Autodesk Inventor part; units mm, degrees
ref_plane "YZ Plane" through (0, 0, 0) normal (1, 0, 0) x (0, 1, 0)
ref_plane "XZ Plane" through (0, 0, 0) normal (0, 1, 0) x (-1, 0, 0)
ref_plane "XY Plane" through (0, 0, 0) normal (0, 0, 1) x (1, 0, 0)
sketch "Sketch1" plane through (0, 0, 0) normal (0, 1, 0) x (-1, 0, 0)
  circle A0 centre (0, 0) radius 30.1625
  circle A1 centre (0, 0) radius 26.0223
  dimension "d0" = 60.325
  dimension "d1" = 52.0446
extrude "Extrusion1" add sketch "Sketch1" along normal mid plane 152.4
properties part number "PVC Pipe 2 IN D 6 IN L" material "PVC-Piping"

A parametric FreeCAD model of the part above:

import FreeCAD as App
import Part
import Sketcher
from FreeCAD import Vector
Q = App.Units.Quantity

doc = App.newDocument("Part")
body = doc.addObject("PartDesign::Body", "Body")

sketch1 = doc.addObject("Sketcher::SketchObject", "Sketch")
body.addObject(sketch1)
sketch1.AttachmentSupport = (doc.XZ_Plane, [""])
sketch1.MapMode = "FlatFace"
sketch1.addGeometry(Part.Circle(Vector(0, 0, 0), Vector(0, 0, 1), 30.1625), False)
sketch1.addGeometry(Part.Circle(Vector(0, 0, 0), Vector(0, 0, 1), 26.0223), False)
sketch1.addConstraint(Sketcher.Constraint("Coincident", 0, 3, -1, 1))
sketch1.addConstraint(Sketcher.Constraint("Coincident", 1, 3, -1, 1))
sketch1.addConstraint(Sketcher.Constraint("Diameter", 0, Q("2.375 in")))
sketch1.addConstraint(Sketcher.Constraint("Diameter", 1, Q("2.049 in")))
pad1 = doc.addObject("PartDesign::Pad", "Pad")
body.addObject(pad1)
pad1.Profile = sketch1
pad1.Length = Q("6 in")
pad1.Midplane = True

doc.recompute()
